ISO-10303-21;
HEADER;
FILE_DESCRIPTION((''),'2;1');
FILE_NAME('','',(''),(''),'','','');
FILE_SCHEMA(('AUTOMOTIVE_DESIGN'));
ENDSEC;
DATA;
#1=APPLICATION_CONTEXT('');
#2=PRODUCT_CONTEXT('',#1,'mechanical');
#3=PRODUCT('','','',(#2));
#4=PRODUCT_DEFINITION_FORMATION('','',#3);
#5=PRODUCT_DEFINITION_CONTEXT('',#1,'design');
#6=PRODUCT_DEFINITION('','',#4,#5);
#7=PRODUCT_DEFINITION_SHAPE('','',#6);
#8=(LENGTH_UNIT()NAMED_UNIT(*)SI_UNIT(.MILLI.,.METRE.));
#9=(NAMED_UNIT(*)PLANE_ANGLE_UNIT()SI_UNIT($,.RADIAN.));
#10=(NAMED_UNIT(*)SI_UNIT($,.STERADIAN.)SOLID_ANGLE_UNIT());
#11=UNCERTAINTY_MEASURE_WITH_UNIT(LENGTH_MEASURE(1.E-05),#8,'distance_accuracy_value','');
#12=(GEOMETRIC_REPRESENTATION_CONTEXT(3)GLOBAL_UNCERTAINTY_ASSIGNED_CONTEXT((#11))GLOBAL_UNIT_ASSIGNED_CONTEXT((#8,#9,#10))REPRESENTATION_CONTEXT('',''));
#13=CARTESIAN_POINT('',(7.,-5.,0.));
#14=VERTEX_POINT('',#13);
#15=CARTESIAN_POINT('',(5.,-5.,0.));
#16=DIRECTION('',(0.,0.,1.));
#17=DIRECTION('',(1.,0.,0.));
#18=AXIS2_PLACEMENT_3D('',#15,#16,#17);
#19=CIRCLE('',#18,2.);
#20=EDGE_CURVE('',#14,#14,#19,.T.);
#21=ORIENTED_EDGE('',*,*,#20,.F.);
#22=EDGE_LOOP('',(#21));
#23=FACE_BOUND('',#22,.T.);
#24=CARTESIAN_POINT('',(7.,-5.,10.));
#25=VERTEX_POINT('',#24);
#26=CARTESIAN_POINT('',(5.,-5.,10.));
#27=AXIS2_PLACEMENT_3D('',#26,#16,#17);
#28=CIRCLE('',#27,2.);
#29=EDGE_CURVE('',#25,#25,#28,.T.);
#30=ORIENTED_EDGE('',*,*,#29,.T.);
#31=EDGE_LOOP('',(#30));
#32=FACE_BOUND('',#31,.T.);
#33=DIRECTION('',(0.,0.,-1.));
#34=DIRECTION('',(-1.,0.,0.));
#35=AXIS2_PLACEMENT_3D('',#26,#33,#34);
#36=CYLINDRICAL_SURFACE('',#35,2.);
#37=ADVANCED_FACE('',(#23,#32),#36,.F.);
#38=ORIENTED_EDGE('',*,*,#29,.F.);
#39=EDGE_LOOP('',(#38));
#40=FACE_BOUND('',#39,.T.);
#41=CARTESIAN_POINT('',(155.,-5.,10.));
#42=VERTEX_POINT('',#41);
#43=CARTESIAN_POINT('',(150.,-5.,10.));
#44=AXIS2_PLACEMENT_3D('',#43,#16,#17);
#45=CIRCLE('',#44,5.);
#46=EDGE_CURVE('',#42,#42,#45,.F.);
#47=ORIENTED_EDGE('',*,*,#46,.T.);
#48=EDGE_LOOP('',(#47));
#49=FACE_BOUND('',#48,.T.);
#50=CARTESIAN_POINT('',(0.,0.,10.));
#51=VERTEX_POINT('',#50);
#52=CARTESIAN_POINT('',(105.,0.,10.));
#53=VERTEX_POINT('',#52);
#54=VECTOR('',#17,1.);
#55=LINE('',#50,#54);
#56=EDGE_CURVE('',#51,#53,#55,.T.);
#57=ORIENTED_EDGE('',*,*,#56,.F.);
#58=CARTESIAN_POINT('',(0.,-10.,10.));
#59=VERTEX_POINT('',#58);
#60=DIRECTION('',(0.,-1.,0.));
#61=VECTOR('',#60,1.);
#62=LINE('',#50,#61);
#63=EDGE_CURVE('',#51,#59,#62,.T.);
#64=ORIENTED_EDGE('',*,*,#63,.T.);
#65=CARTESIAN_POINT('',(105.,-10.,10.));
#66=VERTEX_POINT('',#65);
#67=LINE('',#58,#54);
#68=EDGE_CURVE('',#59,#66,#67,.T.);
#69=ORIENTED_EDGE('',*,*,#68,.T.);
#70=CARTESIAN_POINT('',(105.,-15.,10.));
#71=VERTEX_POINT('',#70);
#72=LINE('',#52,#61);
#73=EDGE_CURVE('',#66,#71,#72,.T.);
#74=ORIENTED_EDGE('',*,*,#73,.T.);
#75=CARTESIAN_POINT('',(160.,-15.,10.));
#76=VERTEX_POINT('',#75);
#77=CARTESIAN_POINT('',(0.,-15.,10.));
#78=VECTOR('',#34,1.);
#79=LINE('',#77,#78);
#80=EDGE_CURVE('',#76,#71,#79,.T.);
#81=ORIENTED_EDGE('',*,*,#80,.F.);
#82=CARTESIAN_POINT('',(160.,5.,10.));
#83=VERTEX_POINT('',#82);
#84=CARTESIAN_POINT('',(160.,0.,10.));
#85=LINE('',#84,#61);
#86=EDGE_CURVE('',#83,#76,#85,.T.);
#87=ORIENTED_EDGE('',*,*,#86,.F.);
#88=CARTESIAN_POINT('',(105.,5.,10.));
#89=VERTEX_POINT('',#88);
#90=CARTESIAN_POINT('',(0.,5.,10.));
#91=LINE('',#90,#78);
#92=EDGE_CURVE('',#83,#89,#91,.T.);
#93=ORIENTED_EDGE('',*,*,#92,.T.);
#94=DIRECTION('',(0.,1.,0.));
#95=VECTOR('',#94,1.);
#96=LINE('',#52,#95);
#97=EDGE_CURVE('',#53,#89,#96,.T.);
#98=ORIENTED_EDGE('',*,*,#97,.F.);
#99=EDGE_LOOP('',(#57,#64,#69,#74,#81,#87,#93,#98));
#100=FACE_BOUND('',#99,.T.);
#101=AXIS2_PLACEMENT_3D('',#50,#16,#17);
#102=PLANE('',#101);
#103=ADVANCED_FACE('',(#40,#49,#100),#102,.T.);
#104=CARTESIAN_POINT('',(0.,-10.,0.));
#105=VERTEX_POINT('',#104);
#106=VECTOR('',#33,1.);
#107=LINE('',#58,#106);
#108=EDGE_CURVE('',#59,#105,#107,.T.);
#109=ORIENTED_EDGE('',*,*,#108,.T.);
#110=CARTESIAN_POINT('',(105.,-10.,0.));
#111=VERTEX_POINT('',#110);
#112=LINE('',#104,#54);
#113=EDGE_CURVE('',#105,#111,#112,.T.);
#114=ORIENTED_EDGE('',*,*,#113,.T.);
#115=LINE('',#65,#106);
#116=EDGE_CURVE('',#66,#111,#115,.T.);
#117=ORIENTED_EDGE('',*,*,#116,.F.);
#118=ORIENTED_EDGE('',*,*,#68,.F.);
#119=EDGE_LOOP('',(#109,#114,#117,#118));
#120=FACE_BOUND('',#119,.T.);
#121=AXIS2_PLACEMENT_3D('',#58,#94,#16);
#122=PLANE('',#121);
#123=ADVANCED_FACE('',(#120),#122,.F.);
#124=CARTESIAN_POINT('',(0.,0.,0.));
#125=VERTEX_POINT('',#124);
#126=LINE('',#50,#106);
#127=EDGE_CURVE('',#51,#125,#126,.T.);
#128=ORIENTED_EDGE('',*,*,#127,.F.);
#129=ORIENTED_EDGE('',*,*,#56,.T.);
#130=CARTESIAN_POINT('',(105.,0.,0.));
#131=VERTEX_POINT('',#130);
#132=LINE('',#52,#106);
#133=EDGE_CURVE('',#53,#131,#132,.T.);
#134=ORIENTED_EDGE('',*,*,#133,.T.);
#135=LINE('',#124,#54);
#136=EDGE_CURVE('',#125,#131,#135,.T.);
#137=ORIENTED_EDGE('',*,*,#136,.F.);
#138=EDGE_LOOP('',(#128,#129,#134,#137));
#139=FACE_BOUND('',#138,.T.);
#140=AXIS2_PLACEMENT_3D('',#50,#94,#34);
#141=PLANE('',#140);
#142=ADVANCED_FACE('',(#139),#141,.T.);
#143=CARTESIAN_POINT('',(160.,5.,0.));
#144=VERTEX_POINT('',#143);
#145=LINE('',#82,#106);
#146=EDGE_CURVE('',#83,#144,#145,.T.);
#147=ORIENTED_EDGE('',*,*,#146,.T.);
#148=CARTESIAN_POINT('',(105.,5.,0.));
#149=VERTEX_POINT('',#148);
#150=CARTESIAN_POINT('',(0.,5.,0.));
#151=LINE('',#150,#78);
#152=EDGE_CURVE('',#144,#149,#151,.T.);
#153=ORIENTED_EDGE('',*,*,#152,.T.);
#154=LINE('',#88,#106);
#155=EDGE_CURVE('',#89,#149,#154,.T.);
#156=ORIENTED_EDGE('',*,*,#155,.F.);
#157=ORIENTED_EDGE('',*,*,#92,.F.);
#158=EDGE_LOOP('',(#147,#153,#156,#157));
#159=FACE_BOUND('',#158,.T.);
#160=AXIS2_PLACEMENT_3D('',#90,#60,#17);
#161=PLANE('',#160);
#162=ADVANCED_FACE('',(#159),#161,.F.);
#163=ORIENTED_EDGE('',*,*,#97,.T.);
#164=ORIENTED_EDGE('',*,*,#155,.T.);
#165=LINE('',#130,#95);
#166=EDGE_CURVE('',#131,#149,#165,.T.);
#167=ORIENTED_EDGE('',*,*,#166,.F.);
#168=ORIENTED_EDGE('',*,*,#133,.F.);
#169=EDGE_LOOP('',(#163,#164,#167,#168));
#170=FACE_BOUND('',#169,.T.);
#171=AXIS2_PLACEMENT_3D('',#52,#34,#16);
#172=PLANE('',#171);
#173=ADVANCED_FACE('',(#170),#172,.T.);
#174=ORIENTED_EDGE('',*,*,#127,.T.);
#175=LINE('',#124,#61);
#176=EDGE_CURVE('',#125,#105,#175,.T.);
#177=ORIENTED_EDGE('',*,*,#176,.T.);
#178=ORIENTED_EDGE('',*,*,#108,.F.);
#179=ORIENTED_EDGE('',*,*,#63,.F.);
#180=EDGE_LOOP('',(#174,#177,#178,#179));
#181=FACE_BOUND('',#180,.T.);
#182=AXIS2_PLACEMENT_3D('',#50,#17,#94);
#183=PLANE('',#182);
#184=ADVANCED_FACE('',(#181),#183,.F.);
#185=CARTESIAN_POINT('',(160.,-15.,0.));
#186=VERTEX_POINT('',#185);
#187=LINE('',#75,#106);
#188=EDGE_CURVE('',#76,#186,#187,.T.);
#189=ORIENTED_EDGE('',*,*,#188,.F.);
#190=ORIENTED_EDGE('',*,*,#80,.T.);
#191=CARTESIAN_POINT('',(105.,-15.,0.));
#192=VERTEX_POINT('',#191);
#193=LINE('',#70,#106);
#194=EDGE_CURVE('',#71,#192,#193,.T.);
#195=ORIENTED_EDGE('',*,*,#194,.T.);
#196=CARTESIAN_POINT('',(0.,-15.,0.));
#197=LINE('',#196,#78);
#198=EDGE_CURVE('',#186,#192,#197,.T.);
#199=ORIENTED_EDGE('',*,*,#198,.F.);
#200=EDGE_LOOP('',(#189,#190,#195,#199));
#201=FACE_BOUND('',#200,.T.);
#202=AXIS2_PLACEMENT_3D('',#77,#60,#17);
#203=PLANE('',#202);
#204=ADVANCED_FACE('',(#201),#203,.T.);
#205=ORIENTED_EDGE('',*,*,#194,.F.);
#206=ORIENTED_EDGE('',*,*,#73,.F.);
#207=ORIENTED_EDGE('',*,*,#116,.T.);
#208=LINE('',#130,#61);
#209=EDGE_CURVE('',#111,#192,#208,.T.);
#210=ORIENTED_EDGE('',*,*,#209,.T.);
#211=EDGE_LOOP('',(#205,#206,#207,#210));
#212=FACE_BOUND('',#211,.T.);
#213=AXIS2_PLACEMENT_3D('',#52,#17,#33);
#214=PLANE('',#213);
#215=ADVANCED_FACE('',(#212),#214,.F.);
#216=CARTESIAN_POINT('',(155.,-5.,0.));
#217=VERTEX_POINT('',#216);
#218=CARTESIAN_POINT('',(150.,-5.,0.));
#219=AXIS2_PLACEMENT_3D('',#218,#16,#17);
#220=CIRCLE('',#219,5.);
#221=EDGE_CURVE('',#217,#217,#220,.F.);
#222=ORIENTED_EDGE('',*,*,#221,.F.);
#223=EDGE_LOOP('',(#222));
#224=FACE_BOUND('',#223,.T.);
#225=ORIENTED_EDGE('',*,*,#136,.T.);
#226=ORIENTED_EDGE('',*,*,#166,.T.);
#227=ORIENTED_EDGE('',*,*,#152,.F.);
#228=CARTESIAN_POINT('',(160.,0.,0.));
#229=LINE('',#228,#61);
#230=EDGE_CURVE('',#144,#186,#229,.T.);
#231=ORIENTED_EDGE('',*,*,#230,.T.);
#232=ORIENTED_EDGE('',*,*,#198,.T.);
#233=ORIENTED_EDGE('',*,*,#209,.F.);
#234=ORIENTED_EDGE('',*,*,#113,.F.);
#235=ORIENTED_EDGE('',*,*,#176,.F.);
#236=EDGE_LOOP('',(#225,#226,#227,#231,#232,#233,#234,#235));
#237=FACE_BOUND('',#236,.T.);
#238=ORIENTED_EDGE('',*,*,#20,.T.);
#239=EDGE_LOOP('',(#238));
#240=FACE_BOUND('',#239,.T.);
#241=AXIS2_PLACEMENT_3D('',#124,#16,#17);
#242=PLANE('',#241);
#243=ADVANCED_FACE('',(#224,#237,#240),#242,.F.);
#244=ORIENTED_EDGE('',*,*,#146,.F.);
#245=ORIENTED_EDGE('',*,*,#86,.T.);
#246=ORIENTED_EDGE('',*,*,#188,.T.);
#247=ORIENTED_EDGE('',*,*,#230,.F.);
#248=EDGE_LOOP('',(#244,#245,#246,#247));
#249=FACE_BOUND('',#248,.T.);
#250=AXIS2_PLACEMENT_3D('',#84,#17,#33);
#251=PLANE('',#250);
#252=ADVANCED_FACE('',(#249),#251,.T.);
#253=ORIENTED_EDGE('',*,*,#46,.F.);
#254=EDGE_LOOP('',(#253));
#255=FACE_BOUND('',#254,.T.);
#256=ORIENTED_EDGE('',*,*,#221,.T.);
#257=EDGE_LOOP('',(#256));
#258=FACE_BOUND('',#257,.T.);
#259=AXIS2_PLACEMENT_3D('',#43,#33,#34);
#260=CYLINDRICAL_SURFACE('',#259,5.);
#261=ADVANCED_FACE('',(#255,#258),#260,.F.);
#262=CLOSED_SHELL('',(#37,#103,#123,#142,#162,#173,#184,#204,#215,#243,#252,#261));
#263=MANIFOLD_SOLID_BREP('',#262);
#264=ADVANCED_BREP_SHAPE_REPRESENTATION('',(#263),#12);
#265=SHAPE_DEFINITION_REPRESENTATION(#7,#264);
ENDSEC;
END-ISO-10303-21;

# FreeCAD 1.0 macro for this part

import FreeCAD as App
import Part
import Sketcher


def add_polygon(sketch, points):
    """Adds a closed chain of lines whose ends are joined by coincident constraints."""
    first, n = sketch.GeometryCount, len(points)
    for a, b in zip(points, points[1:] + points[:1]):
        sketch.addGeometry(Part.LineSegment(App.Vector(*a, 0), App.Vector(*b, 0)), False)
    for i in range(n):
        sketch.addConstraint(Sketcher.Constraint("Coincident", first + i, 2, first + (i + 1) % n, 1))

doc = App.newDocument("Part")
params = doc.addObject("Spreadsheet::Sheet", "Params")
for row, (alias, value) in enumerate([
    ("sketch1_diameter", "10 mm"),
    ("sketch1_diameter2", "4 mm"),
    ("sketch1_width", "105 mm"),
    ("sketch1_width2", "55 mm"),
    ("sketch1_height", "10 mm"),
    ("pad1_length", "10 mm"),
], start=1):
    params.set(f"A{row}", alias)
    params.set(f"B{row}", "=" + value)
    params.setAlias(f"B{row}", alias)

body = doc.addObject("PartDesign::Body", "Body")

sketch1 = body.newObject("Sketcher::SketchObject", "Sketch")
sketch1.AttachmentSupport = (doc.getObject("XY_Plane"), [""])
sketch1.MapMode = "FlatFace"
add_polygon(sketch1, [(105, 0), (0, 0), (0, -10), (105, -10), (105, -15), (160, -15), (160, 5), (105, 5)])
sketch1.addGeometry(Part.Circle(App.Vector(150, -5, 0), App.Vector(0, 0, 1), 5), False)
sketch1.addGeometry(Part.Circle(App.Vector(5, -5, 0), App.Vector(0, 0, 1), 2), False)
sketch1.addConstraint([
    Sketcher.Constraint("Horizontal", 0),
    Sketcher.Constraint("Vertical", 1),
    Sketcher.Constraint("Horizontal", 2),
    Sketcher.Constraint("Vertical", 3),
    Sketcher.Constraint("Horizontal", 4),
    Sketcher.Constraint("Vertical", 5),
    Sketcher.Constraint("Horizontal", 6),
    Sketcher.Constraint("Vertical", 7),
    Sketcher.Constraint("Coincident", 0, 2, -1, 1),
    Sketcher.Constraint("Horizontal", 8, 3, 9, 3),
    Sketcher.Constraint("Vertical", 3, 2, 6, 2),
    Sketcher.Constraint("Equal", 3, 7),
    Sketcher.Constraint("Diameter", 8, 10.0),
    Sketcher.Constraint("Diameter", 9, 4.0),
    Sketcher.Constraint("DistanceX", 0, 2, 0, 1, 105.0),
    Sketcher.Constraint("DistanceX", 4, 1, 4, 2, 55.0),
    Sketcher.Constraint("DistanceY", 1, 2, 1, 1, 10.0),
    Sketcher.Constraint("DistanceY", 3, 2, 3, 1, 5.0),
    Sketcher.Constraint("DistanceX", -1, 1, 8, 3, 150.0),
    Sketcher.Constraint("DistanceY", 8, 3, -1, 1, 5.0),
    Sketcher.Constraint("DistanceX", -1, 1, 9, 3, 5.0),
])
sketch1.setExpression("Constraints[20]", "Params.sketch1_diameter")
sketch1.setExpression("Constraints[21]", "Params.sketch1_diameter2")
sketch1.setExpression("Constraints[22]", "Params.sketch1_width")
sketch1.setExpression("Constraints[23]", "Params.sketch1_width2")
sketch1.setExpression("Constraints[24]", "Params.sketch1_height")
pad1 = body.newObject("PartDesign::Pad", "Pad")
pad1.Profile = sketch1
pad1.setExpression("Length", "Params.pad1_length")

doc.recompute()
